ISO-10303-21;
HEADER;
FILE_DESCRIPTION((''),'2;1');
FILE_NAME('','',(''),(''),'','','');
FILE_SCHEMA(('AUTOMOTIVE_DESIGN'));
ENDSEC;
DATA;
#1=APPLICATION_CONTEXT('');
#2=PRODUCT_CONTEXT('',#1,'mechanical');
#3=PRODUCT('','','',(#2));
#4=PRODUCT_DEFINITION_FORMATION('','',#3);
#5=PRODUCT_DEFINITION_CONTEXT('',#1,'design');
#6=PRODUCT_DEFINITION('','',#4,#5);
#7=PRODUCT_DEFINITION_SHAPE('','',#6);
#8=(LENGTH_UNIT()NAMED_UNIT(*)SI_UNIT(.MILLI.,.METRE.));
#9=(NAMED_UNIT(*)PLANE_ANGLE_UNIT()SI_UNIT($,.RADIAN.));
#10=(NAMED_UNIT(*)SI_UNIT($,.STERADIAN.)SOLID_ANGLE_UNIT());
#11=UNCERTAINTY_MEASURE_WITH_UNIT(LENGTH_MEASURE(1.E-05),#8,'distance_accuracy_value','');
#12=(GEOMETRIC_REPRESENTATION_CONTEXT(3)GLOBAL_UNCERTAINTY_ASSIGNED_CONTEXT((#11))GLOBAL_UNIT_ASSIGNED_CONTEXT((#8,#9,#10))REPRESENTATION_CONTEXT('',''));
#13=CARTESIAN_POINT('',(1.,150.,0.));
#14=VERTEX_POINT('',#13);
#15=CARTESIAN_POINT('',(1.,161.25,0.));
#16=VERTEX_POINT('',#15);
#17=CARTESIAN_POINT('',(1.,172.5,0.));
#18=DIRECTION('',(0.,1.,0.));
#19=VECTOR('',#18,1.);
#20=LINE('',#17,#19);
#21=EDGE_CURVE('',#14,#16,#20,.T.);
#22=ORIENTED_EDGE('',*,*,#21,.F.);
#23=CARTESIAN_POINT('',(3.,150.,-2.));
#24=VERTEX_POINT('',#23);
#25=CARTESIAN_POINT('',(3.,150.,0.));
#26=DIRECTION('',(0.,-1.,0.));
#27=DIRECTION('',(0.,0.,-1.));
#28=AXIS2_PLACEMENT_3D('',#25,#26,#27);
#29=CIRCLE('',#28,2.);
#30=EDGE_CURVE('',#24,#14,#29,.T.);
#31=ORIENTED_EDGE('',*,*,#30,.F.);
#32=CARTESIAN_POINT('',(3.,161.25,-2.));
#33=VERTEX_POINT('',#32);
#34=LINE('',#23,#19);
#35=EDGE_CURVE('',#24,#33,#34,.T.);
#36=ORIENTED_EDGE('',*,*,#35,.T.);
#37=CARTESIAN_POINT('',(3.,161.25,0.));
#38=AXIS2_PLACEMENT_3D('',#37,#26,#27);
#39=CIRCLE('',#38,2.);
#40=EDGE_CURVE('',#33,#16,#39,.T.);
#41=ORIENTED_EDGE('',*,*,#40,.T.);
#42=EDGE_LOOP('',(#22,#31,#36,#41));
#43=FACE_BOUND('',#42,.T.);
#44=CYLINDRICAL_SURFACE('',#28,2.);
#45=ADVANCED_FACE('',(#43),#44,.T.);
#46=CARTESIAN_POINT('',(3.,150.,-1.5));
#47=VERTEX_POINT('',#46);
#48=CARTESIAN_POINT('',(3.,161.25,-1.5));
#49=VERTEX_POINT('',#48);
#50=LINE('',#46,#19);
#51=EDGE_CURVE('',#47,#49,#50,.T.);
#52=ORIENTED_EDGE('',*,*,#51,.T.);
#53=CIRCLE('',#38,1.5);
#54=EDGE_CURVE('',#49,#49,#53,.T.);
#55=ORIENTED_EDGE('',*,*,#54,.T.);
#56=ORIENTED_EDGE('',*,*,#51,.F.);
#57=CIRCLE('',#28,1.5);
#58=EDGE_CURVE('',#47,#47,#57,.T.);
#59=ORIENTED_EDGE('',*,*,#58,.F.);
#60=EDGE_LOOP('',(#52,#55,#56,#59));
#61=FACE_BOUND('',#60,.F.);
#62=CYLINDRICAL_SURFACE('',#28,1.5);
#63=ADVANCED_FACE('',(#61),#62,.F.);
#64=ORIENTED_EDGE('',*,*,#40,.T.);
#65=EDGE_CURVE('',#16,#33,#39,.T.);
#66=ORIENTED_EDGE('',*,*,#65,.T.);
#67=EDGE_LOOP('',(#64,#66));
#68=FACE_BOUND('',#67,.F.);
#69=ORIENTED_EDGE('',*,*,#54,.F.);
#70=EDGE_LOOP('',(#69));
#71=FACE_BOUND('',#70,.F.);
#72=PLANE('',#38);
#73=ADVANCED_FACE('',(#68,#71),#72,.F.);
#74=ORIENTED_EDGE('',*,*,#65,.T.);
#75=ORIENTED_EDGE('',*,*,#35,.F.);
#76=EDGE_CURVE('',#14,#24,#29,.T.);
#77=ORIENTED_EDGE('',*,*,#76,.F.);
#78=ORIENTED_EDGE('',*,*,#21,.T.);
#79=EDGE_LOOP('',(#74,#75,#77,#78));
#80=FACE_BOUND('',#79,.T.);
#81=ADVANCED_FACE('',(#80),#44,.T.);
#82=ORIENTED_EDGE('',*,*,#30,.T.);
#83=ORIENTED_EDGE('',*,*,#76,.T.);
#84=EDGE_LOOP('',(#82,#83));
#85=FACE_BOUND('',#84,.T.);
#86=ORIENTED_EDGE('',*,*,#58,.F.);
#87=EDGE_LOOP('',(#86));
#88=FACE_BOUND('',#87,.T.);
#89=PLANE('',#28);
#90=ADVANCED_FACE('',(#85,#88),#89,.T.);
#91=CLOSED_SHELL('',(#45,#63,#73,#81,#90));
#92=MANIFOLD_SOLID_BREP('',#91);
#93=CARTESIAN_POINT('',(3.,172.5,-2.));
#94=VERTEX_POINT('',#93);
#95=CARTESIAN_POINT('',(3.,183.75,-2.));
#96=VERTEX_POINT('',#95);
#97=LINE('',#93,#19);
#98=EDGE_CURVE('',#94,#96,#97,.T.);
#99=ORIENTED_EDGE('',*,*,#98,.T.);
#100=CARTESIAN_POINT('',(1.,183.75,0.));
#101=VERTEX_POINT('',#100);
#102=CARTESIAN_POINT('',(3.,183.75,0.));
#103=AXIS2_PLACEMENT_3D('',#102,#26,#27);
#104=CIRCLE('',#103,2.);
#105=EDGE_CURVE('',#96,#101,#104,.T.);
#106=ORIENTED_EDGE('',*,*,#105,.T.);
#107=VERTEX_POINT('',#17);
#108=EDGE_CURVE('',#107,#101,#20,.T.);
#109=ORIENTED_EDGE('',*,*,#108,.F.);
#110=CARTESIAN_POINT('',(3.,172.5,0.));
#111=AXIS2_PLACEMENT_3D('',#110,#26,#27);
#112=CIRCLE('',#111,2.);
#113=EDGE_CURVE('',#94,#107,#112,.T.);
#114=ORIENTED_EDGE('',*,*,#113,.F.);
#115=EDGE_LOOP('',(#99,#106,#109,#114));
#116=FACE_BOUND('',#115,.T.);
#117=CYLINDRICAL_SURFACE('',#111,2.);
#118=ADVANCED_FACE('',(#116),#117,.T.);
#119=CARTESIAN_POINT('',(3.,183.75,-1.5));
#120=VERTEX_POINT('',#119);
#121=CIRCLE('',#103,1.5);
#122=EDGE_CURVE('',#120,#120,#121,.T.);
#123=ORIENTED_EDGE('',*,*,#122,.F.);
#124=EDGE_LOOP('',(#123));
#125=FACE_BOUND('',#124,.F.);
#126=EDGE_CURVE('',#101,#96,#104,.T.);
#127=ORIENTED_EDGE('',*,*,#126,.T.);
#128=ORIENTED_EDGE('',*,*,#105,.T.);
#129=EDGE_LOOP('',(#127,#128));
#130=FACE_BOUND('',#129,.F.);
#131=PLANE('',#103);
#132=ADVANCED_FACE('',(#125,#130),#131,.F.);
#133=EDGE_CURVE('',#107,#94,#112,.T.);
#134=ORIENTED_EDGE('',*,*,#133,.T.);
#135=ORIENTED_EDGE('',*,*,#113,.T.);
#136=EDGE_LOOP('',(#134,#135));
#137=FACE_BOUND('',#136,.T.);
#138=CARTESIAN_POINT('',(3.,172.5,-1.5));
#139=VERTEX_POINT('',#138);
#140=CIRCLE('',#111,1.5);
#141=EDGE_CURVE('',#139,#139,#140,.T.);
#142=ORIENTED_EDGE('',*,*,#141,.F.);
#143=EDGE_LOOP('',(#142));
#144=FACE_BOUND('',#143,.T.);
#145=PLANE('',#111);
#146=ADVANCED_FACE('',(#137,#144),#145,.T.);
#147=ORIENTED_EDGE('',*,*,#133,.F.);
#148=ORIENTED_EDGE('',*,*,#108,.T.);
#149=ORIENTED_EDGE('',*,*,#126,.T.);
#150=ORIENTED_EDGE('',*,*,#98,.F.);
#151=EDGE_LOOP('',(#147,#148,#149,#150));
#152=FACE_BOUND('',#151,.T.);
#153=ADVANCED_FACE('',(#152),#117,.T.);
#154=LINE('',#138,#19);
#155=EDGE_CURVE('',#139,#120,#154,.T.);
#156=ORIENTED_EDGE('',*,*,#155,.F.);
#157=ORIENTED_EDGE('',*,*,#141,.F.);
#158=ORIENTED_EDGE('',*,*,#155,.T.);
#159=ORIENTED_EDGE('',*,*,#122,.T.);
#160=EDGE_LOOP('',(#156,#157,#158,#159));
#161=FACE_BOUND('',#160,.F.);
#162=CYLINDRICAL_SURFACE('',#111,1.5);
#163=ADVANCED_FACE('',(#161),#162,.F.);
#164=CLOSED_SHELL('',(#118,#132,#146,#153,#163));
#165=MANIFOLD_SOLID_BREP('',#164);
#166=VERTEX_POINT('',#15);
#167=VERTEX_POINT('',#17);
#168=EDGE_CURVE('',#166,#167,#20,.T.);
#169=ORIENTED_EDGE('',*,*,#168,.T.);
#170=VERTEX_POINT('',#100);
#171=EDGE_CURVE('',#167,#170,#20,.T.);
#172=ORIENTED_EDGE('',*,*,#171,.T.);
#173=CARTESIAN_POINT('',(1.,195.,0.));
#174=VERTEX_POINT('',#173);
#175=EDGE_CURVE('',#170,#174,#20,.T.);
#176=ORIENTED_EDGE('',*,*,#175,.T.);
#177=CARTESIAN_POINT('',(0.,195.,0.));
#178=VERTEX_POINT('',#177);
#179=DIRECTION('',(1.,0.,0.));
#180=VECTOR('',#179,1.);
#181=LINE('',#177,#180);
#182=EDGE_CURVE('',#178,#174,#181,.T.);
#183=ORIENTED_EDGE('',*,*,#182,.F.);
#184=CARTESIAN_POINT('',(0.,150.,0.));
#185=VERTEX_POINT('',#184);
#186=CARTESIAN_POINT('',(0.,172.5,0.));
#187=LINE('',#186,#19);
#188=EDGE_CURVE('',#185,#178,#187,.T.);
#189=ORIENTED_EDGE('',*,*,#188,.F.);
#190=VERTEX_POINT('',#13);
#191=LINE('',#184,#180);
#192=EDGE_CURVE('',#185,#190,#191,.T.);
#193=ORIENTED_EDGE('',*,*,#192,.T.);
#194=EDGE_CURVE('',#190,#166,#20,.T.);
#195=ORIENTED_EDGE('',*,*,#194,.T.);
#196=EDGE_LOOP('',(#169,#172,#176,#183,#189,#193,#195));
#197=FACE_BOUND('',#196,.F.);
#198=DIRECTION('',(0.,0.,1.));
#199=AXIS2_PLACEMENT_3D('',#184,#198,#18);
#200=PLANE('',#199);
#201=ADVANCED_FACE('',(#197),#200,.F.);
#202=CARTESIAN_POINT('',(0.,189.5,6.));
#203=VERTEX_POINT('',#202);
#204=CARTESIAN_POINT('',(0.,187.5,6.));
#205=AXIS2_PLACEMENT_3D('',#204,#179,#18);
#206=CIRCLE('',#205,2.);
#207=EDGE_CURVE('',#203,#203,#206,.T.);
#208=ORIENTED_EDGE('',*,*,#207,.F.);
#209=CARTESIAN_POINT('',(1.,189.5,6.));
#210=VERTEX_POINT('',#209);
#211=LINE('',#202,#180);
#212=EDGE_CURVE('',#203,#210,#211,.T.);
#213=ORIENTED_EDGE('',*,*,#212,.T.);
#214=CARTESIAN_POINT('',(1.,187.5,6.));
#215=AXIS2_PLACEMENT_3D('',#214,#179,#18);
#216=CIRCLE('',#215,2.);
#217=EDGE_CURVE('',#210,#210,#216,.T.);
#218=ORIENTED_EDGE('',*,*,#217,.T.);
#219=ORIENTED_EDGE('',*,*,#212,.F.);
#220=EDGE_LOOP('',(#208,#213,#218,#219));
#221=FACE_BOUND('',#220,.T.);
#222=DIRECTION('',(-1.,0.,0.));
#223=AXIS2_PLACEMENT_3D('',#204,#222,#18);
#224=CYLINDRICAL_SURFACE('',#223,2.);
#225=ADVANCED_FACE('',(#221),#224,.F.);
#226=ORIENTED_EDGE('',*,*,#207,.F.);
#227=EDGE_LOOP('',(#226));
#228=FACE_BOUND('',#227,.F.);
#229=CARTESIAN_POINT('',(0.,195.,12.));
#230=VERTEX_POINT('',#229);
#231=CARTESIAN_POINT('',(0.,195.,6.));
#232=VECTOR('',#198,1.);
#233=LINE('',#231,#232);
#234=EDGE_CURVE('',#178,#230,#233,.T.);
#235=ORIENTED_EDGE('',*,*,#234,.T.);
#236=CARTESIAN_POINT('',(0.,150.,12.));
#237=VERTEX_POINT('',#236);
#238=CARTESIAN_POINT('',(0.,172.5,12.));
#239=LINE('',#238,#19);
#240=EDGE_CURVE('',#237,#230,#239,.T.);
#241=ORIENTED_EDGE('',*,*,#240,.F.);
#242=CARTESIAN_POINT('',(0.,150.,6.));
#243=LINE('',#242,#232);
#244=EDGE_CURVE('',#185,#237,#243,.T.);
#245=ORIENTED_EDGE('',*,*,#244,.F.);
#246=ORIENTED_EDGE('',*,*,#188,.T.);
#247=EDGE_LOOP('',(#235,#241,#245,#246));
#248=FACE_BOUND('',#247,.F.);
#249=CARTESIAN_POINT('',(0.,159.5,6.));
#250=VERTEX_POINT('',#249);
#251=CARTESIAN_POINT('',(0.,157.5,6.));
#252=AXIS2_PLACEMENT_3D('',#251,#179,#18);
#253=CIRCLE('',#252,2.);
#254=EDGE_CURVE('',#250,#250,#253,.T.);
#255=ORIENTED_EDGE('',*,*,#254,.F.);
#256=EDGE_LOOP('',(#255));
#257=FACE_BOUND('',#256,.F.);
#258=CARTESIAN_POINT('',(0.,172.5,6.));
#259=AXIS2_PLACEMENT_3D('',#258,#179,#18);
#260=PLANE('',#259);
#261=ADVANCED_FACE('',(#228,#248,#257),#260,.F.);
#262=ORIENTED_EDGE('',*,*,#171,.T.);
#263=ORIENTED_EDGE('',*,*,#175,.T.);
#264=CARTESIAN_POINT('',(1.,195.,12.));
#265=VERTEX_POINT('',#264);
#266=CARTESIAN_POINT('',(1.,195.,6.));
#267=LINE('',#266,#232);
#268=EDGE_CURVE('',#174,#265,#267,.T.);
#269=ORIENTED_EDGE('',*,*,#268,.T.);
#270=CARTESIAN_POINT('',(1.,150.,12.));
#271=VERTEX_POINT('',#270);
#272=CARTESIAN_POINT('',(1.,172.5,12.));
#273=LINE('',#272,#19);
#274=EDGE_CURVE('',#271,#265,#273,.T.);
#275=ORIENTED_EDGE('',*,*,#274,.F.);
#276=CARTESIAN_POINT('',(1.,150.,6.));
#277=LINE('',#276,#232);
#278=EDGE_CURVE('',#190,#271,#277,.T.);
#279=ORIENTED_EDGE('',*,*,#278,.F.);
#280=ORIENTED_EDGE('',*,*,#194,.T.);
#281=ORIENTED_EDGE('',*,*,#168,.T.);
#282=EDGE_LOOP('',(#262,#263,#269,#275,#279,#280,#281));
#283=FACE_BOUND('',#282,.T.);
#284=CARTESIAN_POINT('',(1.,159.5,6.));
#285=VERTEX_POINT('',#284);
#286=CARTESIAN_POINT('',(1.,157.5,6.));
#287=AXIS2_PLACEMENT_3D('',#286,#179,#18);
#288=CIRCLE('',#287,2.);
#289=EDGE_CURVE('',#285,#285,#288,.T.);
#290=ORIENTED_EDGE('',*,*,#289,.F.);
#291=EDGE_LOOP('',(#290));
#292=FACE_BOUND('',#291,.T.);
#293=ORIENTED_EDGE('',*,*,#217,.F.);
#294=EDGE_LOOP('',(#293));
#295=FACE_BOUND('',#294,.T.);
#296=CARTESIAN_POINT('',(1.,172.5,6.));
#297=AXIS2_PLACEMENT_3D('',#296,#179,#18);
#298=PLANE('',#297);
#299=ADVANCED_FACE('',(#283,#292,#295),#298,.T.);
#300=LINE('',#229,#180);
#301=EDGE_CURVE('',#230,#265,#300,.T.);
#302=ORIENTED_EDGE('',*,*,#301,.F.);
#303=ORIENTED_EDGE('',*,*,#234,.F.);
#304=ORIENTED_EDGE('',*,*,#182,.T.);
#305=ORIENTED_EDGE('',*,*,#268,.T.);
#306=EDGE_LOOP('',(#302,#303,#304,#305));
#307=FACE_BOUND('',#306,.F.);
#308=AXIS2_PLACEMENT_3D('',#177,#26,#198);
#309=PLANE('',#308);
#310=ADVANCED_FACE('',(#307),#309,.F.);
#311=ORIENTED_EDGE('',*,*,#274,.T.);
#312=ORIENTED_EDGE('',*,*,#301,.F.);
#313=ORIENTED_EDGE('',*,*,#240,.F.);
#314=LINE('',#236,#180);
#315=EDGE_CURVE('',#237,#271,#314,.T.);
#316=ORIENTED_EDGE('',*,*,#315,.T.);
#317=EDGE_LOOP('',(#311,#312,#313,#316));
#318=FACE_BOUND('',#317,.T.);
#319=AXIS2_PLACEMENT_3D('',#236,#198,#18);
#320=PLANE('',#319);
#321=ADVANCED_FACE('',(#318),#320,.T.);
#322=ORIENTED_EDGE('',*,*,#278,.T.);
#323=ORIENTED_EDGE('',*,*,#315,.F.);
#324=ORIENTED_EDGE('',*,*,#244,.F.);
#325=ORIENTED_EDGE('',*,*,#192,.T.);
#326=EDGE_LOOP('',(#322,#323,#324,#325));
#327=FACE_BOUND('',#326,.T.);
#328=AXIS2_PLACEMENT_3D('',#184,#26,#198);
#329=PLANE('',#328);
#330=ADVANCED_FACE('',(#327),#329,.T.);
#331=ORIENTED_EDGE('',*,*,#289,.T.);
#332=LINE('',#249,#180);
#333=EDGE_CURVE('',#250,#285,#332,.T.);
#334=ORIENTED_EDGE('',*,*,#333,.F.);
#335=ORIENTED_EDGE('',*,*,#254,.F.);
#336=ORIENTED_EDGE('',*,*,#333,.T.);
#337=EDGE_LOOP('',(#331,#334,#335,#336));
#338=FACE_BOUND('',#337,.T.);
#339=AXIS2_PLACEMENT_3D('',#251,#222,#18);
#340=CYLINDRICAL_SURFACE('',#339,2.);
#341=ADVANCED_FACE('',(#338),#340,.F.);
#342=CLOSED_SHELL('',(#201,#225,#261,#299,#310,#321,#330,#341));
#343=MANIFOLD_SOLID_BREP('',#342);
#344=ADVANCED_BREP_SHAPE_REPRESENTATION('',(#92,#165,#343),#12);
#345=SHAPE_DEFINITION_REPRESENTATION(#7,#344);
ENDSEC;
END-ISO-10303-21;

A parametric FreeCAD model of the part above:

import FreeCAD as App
import Part
import Sketcher
from FreeCAD import Vector
Q = App.Units.Quantity

doc = App.newDocument("Part")
body = doc.addObject("PartDesign::Body", "Body")
body.AllowCompound = True

# Sketch on YZ plane
sketch1 = body.newObject("Sketcher::SketchObject", "Sketch")
sketch1.AttachmentSupport = (doc.getObject("YZ_Plane"), [""])
sketch1.MapMode = "FlatFace"
sketch1.addGeometry([
    Part.LineSegment(Vector(150, 12, 0), Vector(150, 0, 0)),  # 0
    Part.LineSegment(Vector(150, 0, 0), Vector(195, 0, 0)),  # 1
    Part.LineSegment(Vector(195, 0, 0), Vector(195, 12, 0)),  # 2
    Part.LineSegment(Vector(195, 12, 0), Vector(150, 12, 0)),  # 3
    Part.Circle(Vector(157.5, 6, 0), Vector(0, 0, 1), 2),  # 4
    Part.Circle(Vector(187.5, 6, 0), Vector(0, 0, 1), 2),  # 5
], False)
sketch1.addConstraint([
    Sketcher.Constraint("Coincident", 0, 2, 1, 1),
    Sketcher.Constraint("Coincident", 1, 2, 2, 1),
    Sketcher.Constraint("Coincident", 2, 2, 3, 1),
    Sketcher.Constraint("Coincident", 3, 2, 0, 1),
    Sketcher.Constraint("Vertical", 0),
    Sketcher.Constraint("Horizontal", 1),
    Sketcher.Constraint("Vertical", 2),
    Sketcher.Constraint("Horizontal", 3),
    Sketcher.Constraint("Equal", 4, 5),
    Sketcher.Constraint("PointOnObject", 0, 2, -1),
    Sketcher.Constraint("Horizontal", 4, 3, 5, 3),
    Sketcher.Constraint("Diameter", 4, Q("4 mm")),
    Sketcher.Constraint("DistanceX", 1, 1, 1, 2, Q("45 mm")),
    Sketcher.Constraint("DistanceY", 0, 2, 0, 1, Q("12 mm")),
    Sketcher.Constraint("DistanceY", -1, 1, 4, 3, Q("6 mm")),
    Sketcher.Constraint("DistanceX", -1, 1, 0, 2, Q("150 mm")),
    Sketcher.Constraint("DistanceX", 4, 3, 5, 3, Q("30 mm")),
    Sketcher.Constraint("DistanceX", -1, 1, 4, 3, Q("157.5 mm")),
])
pad1 = body.newObject("PartDesign::Pad", "Pad")
pad1.Profile = sketch1
pad1.Length = 1

# Sketch on XZ plane
sketch2 = body.newObject("Sketcher::SketchObject", "Sketch001")
sketch2.AttachmentSupport = (doc.getObject("XZ_Plane"), [""])
sketch2.MapMode = "FlatFace"
sketch2.AttachmentOffset = App.Placement(Vector(0, 0, -150), App.Rotation())
sketch2.addGeometry([
    Part.Circle(Vector(3, 0, 0), Vector(0, 0, 1), 2),
    Part.Circle(Vector(3, 0, 0), Vector(0, 0, 1), 1.5),
], False)
sketch2.addConstraint([
    Sketcher.Constraint("Coincident", 1, 3, 0, 3),
    Sketcher.Constraint("PointOnObject", 0, 3, -1),
    Sketcher.Constraint("Diameter", 0, Q("4 mm")),
    Sketcher.Constraint("Diameter", 1, Q("3 mm")),
    Sketcher.Constraint("DistanceX", -1, 1, 0, 3, Q("3 mm")),
])
pad2 = body.newObject("PartDesign::Pad", "Pad001")
pad2.Profile = sketch2
pad2.Length = 11.25
pad2.Reversed = True
doc.recompute()

linearpattern = body.newObject("PartDesign::LinearPattern", "LinearPattern")
linearpattern.Originals = [pad2]
linearpattern.Direction = (doc.getObject("Y_Axis"), [""])
linearpattern.Mode = "offset"
linearpattern.Offset = 22.5
linearpattern.Occurrences = 2
body.Tip = linearpattern

doc.recompute()
